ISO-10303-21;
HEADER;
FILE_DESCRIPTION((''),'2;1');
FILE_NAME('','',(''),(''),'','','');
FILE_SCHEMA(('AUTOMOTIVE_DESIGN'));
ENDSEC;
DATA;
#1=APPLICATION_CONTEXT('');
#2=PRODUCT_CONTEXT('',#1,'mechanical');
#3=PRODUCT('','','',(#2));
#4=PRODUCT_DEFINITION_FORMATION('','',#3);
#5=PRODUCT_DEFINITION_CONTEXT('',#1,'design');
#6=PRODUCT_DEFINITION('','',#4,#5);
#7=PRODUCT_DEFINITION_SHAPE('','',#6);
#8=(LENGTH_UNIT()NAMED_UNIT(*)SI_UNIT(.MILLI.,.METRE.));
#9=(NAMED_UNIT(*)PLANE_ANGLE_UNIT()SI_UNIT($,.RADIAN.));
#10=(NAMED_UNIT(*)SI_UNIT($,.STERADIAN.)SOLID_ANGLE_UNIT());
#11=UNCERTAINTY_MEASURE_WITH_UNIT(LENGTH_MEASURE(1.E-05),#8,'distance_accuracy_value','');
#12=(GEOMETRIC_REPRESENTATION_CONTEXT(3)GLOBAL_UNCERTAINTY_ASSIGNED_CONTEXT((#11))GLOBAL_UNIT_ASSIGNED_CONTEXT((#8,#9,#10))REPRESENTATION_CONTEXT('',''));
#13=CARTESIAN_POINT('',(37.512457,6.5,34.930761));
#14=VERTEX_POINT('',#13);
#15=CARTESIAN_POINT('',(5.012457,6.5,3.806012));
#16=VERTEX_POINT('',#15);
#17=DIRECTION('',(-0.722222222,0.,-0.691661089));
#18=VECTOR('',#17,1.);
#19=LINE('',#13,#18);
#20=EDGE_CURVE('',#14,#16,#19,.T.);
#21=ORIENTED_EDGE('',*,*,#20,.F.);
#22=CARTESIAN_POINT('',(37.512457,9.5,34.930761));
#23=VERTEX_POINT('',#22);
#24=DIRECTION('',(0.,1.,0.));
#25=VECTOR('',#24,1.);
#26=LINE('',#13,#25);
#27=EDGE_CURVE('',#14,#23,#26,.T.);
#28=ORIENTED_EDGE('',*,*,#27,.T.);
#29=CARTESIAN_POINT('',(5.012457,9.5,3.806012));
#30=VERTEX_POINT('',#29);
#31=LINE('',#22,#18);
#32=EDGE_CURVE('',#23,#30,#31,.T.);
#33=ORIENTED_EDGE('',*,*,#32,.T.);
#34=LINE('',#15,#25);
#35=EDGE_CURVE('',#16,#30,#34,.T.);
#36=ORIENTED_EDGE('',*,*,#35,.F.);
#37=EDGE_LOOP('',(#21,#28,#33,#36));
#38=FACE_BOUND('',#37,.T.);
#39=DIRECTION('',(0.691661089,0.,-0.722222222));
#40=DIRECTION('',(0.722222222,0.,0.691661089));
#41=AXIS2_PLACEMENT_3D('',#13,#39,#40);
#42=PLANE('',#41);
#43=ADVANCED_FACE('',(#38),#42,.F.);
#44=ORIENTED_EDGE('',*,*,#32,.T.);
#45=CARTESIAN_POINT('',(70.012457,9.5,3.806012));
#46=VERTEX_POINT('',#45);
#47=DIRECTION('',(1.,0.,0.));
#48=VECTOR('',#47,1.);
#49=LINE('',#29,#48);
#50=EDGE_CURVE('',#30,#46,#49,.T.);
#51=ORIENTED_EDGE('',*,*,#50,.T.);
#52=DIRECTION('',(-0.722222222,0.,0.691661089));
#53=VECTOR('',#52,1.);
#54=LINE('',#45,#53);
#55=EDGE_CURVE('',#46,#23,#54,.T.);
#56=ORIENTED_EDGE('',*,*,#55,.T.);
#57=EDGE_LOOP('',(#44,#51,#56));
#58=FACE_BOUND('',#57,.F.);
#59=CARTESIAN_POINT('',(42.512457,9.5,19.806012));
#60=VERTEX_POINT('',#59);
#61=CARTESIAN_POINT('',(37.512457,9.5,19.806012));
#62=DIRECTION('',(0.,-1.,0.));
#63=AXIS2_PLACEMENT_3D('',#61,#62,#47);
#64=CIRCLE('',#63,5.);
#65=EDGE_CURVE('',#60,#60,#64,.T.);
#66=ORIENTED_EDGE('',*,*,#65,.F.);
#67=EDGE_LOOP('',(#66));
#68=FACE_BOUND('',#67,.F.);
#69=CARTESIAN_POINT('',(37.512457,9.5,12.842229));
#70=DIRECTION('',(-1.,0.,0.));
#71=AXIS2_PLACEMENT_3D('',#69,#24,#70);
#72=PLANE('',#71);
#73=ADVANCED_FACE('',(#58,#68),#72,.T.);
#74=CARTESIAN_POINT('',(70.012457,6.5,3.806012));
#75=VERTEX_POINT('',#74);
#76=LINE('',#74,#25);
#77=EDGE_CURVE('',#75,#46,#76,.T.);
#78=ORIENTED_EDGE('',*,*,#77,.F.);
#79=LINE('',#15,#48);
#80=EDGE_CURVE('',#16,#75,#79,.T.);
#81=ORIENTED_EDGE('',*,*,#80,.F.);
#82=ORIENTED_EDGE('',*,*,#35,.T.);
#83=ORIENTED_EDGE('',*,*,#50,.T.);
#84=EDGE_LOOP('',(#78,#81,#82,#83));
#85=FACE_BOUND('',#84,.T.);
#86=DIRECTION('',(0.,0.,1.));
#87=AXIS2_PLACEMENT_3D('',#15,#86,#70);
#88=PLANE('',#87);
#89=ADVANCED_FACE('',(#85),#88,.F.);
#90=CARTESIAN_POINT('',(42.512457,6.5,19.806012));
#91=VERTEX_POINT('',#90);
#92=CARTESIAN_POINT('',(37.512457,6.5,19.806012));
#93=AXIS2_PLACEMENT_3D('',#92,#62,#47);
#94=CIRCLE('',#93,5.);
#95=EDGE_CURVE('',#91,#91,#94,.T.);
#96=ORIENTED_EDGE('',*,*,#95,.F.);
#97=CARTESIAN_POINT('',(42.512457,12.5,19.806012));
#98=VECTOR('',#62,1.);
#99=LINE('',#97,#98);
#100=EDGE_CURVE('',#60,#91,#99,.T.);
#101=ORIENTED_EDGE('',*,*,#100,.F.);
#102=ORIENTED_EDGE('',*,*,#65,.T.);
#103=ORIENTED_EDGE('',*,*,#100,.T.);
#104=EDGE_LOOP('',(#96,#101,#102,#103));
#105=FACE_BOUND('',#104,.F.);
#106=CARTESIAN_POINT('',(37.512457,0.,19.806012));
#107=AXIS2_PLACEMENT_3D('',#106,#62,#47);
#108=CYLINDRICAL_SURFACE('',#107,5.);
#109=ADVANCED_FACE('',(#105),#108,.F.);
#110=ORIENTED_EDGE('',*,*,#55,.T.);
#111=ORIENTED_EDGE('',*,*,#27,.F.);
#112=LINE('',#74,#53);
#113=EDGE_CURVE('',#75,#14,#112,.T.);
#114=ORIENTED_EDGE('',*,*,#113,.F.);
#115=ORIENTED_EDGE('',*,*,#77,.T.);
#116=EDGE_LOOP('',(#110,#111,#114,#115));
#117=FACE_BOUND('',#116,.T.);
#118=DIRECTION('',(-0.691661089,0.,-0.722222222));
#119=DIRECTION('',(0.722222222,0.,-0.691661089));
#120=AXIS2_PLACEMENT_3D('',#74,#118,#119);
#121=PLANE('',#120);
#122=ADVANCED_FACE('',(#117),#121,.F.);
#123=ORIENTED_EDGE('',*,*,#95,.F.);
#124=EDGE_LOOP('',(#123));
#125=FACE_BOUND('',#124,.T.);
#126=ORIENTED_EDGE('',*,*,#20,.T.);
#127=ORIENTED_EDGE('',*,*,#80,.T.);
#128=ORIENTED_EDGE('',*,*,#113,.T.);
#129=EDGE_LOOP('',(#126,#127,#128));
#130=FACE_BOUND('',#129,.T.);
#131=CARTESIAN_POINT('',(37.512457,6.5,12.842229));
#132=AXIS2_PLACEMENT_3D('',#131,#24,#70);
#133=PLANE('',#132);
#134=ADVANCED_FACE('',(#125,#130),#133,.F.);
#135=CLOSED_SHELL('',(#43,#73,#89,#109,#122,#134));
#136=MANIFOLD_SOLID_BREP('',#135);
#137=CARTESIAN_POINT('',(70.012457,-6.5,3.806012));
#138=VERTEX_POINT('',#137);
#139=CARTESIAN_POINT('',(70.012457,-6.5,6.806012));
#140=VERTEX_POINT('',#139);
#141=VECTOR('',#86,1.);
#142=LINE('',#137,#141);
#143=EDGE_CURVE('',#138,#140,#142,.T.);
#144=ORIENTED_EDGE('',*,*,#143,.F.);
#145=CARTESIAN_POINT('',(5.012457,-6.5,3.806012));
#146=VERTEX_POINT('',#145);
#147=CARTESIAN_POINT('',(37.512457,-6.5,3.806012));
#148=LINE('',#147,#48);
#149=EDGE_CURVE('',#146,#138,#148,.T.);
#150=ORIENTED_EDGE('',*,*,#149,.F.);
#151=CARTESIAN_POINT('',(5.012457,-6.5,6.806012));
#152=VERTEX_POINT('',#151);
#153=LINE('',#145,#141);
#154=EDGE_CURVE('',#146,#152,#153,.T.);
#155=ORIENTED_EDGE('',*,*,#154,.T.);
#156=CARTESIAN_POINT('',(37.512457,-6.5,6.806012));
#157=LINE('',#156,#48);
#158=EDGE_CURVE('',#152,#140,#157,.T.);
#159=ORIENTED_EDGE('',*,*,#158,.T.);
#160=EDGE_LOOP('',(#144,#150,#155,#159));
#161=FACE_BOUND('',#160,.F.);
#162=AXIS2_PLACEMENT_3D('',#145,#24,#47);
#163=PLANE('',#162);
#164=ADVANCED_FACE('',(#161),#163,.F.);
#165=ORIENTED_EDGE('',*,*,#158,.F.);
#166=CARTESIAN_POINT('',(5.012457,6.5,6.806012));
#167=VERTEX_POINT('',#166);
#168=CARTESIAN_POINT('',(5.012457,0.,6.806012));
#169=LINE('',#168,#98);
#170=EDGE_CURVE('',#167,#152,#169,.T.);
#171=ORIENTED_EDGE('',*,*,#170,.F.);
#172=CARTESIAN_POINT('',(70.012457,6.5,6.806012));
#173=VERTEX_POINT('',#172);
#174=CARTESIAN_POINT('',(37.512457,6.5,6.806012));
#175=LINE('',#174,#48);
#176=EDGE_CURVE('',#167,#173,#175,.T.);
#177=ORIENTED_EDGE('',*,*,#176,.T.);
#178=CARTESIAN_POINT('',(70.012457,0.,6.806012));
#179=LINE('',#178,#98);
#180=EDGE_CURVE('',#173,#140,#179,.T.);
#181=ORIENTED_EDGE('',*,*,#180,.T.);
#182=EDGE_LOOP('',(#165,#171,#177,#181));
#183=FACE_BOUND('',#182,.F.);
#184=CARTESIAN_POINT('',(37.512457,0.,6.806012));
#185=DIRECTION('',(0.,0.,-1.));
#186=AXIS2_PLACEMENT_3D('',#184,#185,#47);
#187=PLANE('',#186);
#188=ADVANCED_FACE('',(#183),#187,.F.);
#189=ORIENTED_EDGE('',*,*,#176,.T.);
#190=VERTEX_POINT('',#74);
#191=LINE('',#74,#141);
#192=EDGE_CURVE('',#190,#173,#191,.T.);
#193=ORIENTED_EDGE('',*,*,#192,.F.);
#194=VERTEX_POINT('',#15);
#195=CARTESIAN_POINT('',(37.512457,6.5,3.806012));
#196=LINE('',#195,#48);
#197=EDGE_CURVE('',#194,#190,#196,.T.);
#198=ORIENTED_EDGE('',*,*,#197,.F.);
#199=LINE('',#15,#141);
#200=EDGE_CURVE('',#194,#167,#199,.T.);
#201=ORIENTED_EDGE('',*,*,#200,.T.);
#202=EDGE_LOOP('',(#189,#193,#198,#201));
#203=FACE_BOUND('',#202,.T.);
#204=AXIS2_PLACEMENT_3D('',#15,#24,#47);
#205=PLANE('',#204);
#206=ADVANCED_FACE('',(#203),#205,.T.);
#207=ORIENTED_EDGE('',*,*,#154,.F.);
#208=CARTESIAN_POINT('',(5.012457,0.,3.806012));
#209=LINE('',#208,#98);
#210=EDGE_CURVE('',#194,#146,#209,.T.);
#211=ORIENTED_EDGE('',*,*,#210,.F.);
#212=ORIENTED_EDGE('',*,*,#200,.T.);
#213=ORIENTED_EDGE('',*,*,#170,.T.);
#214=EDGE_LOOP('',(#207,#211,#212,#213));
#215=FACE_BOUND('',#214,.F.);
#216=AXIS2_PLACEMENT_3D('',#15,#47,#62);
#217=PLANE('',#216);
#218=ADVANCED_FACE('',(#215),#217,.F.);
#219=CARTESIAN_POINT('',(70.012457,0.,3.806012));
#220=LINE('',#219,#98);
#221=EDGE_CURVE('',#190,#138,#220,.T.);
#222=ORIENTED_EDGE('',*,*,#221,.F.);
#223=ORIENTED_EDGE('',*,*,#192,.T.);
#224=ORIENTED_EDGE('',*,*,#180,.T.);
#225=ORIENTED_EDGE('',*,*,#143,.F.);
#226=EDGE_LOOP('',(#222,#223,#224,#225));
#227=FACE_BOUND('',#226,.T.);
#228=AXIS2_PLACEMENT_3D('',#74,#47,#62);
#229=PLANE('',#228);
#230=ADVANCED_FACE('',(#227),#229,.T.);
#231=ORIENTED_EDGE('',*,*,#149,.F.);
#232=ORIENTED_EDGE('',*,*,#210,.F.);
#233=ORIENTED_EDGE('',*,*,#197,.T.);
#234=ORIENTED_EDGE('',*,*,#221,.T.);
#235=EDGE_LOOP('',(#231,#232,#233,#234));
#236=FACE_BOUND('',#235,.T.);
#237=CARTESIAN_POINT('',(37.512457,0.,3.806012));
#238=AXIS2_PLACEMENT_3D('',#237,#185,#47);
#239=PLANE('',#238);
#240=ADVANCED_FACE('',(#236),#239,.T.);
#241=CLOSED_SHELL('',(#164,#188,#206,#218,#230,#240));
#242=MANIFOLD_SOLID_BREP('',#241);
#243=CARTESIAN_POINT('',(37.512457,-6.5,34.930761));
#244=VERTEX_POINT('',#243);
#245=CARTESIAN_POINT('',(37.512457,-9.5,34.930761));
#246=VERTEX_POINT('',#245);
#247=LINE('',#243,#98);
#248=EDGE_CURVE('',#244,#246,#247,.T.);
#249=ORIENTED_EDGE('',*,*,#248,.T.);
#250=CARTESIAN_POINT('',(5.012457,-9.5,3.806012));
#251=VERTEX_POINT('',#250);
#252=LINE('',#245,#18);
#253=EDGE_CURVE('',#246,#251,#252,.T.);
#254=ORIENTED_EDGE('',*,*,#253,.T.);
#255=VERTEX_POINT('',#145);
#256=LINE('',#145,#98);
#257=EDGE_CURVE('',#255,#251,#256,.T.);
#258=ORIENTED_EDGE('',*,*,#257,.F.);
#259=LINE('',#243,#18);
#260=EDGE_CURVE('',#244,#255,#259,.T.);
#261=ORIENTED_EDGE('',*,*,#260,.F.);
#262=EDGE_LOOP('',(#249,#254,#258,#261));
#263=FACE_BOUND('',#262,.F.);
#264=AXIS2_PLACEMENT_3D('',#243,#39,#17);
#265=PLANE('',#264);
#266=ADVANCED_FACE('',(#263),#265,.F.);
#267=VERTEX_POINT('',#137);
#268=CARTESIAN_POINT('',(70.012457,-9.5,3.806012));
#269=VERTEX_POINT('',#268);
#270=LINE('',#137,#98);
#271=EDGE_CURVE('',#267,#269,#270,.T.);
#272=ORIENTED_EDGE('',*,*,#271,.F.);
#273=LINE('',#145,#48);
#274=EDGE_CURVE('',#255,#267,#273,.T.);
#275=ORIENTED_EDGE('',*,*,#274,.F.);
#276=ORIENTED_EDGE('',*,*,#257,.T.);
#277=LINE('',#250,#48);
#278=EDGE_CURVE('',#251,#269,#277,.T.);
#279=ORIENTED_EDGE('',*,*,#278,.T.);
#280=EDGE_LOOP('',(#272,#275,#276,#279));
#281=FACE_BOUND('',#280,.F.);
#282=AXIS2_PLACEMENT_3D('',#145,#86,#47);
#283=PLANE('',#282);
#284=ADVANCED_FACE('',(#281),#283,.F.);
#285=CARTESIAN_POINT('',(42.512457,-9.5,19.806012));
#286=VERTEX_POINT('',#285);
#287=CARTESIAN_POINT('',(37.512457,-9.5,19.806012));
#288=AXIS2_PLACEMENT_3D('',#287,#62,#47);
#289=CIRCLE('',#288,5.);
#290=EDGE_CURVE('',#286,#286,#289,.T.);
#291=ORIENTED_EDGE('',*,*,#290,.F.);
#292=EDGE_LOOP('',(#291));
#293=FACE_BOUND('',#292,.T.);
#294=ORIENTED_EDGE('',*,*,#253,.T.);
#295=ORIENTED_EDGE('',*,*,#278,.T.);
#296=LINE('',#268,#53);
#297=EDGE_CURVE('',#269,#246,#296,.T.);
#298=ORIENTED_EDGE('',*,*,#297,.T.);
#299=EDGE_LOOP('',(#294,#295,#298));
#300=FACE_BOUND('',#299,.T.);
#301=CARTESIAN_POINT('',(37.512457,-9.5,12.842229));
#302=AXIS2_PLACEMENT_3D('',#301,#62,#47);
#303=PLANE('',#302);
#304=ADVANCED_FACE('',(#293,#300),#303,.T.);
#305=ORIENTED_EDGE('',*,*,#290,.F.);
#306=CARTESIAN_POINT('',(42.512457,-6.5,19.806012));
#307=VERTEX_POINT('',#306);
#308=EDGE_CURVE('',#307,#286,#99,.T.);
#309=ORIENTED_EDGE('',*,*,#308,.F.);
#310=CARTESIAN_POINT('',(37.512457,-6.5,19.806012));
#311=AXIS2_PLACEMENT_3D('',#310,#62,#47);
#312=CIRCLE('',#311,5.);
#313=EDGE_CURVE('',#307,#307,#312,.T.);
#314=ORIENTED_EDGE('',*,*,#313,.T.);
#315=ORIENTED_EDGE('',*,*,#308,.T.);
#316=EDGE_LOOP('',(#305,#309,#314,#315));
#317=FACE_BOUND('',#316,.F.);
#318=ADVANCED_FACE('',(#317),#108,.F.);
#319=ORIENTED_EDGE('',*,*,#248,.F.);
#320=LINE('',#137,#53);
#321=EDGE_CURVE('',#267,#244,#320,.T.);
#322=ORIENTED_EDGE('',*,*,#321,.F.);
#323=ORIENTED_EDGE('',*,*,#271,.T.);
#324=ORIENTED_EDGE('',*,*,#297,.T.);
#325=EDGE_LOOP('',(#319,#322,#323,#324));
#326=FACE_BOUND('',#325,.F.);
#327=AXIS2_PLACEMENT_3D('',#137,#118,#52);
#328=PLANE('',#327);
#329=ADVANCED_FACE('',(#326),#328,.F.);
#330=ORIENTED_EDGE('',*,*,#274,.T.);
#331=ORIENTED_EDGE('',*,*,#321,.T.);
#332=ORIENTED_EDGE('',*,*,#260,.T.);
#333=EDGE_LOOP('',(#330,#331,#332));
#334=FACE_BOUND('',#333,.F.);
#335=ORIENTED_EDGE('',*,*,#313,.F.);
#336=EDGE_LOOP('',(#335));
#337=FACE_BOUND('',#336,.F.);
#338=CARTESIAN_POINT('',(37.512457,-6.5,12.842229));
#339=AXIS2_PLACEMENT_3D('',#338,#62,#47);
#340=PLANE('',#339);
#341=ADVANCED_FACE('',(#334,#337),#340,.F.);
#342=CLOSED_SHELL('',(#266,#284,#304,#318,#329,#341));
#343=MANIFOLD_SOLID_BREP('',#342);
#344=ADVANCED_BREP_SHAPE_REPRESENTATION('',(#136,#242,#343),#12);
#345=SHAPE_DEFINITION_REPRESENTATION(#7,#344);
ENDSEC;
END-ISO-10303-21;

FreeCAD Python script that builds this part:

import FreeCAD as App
import Part
import Sketcher

V = App.Vector


def add_polygon(sketch, points):
    """Adds a closed chain of lines whose ends are joined by coincident constraints."""
    first, n = sketch.GeometryCount, len(points)
    for a, b in zip(points, points[1:] + points[:1]):
        sketch.addGeometry(Part.LineSegment(App.Vector(*a, 0), App.Vector(*b, 0)), False)
    for i in range(n):
        sketch.addConstraint(Sketcher.Constraint("Coincident", first + i, 2, first + (i + 1) % n, 1))

doc = App.newDocument("Part")
body = doc.addObject("PartDesign::Body", "Body")

sketch1 = body.newObject("Sketcher::SketchObject", "Sketch")
sketch1.AttachmentSupport = (doc.getObject("XZ_Plane"), [""])
sketch1.MapMode = "FlatFace"
sketch1.AttachmentOffset = App.Placement(V(0, 0, 6.5), App.Rotation())
add_polygon(sketch1, [(38, 35), (5, 4), (70, 4)])
sketch1.addConstraint(Sketcher.Constraint("Horizontal", 1))
sketch1.addConstraint(Sketcher.Constraint("Equal", 0, 2))
sketch1.addConstraint(Sketcher.Constraint("DistanceX", 1, 1, 1, 2, 65.0))
sketch1.addConstraint(Sketcher.Constraint("Distance", 0, 45.0))
sketch1.addConstraint(Sketcher.Constraint("DistanceY", -1, 1, 0, 2, 3.806012))
sketch1.addConstraint(Sketcher.Constraint("DistanceX", -1, 1, 0, 2, 5.012457))
pad1 = body.newObject("PartDesign::Pad", "Pad")
pad1.Profile = sketch1
pad1.Length = 3
body2 = doc.addObject("PartDesign::Body", "Body001")
doc.recompute()

mirroring = doc.addObject("Part::Mirroring", "Mirroring")
mirroring.Source = body
mirroring.Base = V(0, 0, 0)
mirroring.Normal = V(0, -1, 0)
body2.BaseFeature = mirroring
doc.recompute()
body3 = doc.addObject("PartDesign::Body", "Body002")

sketch2 = body3.newObject("Sketcher::SketchObject", "Sketch001")
sketch2.AttachmentSupport = (doc.getObject("XY_Plane002"), [""])
sketch2.MapMode = "FlatFace"
sketch2.AttachmentOffset = App.Placement(V(0, 0, 3.806012), App.Rotation())
add_polygon(sketch2, [(5, -6), (5, 6), (70, 6), (70, -6)])
sketch2.addConstraint(Sketcher.Constraint("Vertical", 0))
sketch2.addConstraint(Sketcher.Constraint("Horizontal", 1))
sketch2.addConstraint(Sketcher.Constraint("Vertical", 2))
sketch2.addConstraint(Sketcher.Constraint("Horizontal", 3))
sketch2.addConstraint(Sketcher.Constraint("DistanceX", 1, 1, 1, 2, 65.0))
sketch2.addConstraint(Sketcher.Constraint("DistanceY", 0, 1, 0, 2, 13.0))
sketch2.addConstraint(Sketcher.Constraint("DistanceY", -1, 1, 0, 2, 6.5))
sketch2.addConstraint(Sketcher.Constraint("DistanceX", -1, 1, 0, 2, 5.012457))
pad2 = body3.newObject("PartDesign::Pad", "Pad001")
pad2.Profile = sketch2
pad2.Length = 3
body4 = doc.addObject("PartDesign::Body", "Body003")

sketch3 = body4.newObject("Sketcher::SketchObject", "Sketch002")
sketch3.AttachmentSupport = (doc.getObject("XZ_Plane003"), [""])
sketch3.MapMode = "FlatFace"
sketch3.addGeometry(Part.Circle(V(38, 20, 0), V(0, 0, 1), 5), False)
sketch3.addConstraint(Sketcher.Constraint("Diameter", 0, 10.0))
sketch3.addConstraint(Sketcher.Constraint("DistanceY", -1, 1, 0, 3, 19.806012))
sketch3.addConstraint(Sketcher.Constraint("DistanceX", -1, 1, 0, 3, 37.512457))
pad3 = body4.newObject("PartDesign::Pad", "Pad002")
pad3.Profile = sketch3
pad3.Length = 25
pad3.Midplane = True
doc.recompute()

body5 = doc.addObject("PartDesign::Body", "Body004")
body5.BaseFeature = body4
boolean = body.newObject("PartDesign::Boolean", "Boolean")
boolean.Type = "Cut"
boolean.addObjects([body5])
doc.recompute()

boolean2 = body2.newObject("PartDesign::Boolean", "Boolean001")
boolean2.Type = "Cut"
boolean2.addObjects([body4])
mirroring.Visibility = False

doc.recompute()
